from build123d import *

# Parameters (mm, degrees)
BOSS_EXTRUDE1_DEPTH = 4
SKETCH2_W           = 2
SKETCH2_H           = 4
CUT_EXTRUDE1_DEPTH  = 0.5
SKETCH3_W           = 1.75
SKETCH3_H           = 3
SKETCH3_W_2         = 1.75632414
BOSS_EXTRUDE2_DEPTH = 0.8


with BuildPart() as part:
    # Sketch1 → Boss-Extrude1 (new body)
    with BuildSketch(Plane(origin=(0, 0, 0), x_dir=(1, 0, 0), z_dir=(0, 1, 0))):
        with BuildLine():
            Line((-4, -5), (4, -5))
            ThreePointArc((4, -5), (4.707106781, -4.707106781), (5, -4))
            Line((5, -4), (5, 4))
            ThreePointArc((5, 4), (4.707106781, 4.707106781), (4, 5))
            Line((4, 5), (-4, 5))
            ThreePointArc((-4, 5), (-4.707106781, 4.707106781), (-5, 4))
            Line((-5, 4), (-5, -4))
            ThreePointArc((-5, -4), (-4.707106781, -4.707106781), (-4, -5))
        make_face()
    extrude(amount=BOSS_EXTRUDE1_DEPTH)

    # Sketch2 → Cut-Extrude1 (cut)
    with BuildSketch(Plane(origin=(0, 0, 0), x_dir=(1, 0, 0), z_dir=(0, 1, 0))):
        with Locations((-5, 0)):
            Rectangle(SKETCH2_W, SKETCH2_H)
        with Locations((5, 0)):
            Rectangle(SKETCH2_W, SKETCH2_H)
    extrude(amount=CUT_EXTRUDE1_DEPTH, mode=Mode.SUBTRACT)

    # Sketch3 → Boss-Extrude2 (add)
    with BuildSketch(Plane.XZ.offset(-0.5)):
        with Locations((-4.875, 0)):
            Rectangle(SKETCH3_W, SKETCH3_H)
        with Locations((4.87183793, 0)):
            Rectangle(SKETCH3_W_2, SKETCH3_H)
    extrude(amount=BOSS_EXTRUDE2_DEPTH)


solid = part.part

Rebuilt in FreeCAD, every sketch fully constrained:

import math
import FreeCAD as App
import Part
import Sketcher

doc = App.newDocument("Part")
body = doc.addObject("PartDesign::Body", "Body")

sketch1 = doc.addObject("Sketcher::SketchObject", "Sketch")
body.addObject(sketch1)
sketch1.AttachmentSupport = (doc.XZ_Plane, [""])
sketch1.MapMode = "FlatFace"
sketch1.addGeometry([
    Part.LineSegment(App.Vector(-4, 5, 0), App.Vector(4, 5, 0)),
    Part.ArcOfCircle(Part.Circle(App.Vector(4, 4, 0), App.Vector(0, 0, 1), 1), math.radians(0), math.radians(90)),
    Part.LineSegment(App.Vector(5, 4, 0), App.Vector(5, -4, 0)),
    Part.ArcOfCircle(Part.Circle(App.Vector(4, -4, 0), App.Vector(0, 0, 1), 1), math.radians(-90), math.radians(0)),
    Part.LineSegment(App.Vector(4, -5, 0), App.Vector(-4, -5, 0)),
    Part.ArcOfCircle(Part.Circle(App.Vector(-4, -4, 0), App.Vector(0, 0, 1), 1), math.radians(-180), math.radians(-90)),
    Part.LineSegment(App.Vector(-5, -4, 0), App.Vector(-5, 4, 0)),
    Part.ArcOfCircle(Part.Circle(App.Vector(-4, 4, 0), App.Vector(0, 0, 1), 1), math.radians(90), math.radians(180)),
], False)
sketch1.addConstraint([
    Sketcher.Constraint("Tangent", 0, 2, 1, 2),
    Sketcher.Constraint("Tangent", 1, 1, 2, 1),
    Sketcher.Constraint("Tangent", 2, 2, 3, 2),
    Sketcher.Constraint("Tangent", 3, 1, 4, 1),
    Sketcher.Constraint("Tangent", 4, 2, 5, 2),
    Sketcher.Constraint("Tangent", 5, 1, 6, 1),
    Sketcher.Constraint("Tangent", 6, 2, 7, 2),
    Sketcher.Constraint("Tangent", 7, 1, 0, 1),
    Sketcher.Constraint("Horizontal", 0),
    Sketcher.Constraint("Vertical", 2),
    Sketcher.Constraint("Horizontal", 4),
    Sketcher.Constraint("Vertical", 6),
    Sketcher.Constraint("Equal", 1, 3),
    Sketcher.Constraint("Equal", 3, 5),
    Sketcher.Constraint("Equal", 5, 7),
    Sketcher.Constraint("Symmetric", 1, 3, 5, 3, -1, 1),
    Sketcher.Constraint("Equal", 4, 2),
    Sketcher.Constraint("Radius", 1, 1.0),
    Sketcher.Constraint("DistanceX", 0, 1, 0, 2, 8.0),
])
pad1 = doc.addObject("PartDesign::Pad", "Pad")
body.addObject(pad1)
pad1.Profile = sketch1
pad1.Length = 4
pad1.Reversed = True

sketch2 = doc.addObject("Sketcher::SketchObject", "Sketch001")
body.addObject(sketch2)
sketch2.AttachmentSupport = (doc.XZ_Plane, [""])
sketch2.MapMode = "FlatFace"
sketch2.addGeometry([
    Part.LineSegment(App.Vector(-6, -2, 0), App.Vector(-6, 2, 0)),
    Part.LineSegment(App.Vector(-6, 2, 0), App.Vector(-4, 2, 0)),
    Part.LineSegment(App.Vector(-4, 2, 0), App.Vector(-4, -2, 0)),
    Part.LineSegment(App.Vector(-4, -2, 0), App.Vector(-6, -2, 0)),
    Part.LineSegment(App.Vector(4, -2, 0), App.Vector(4, 2, 0)),
    Part.LineSegment(App.Vector(4, 2, 0), App.Vector(6, 2, 0)),
    Part.LineSegment(App.Vector(6, 2, 0), App.Vector(6, -2, 0)),
    Part.LineSegment(App.Vector(6, -2, 0), App.Vector(4, -2, 0)),
], False)
sketch2.addConstraint([
    Sketcher.Constraint("Coincident", 0, 2, 1, 1),
    Sketcher.Constraint("Coincident", 1, 2, 2, 1),
    Sketcher.Constraint("Coincident", 2, 2, 3, 1),
    Sketcher.Constraint("Coincident", 3, 2, 0, 1),
    Sketcher.Constraint("Coincident", 4, 2, 5, 1),
    Sketcher.Constraint("Coincident", 5, 2, 6, 1),
    Sketcher.Constraint("Coincident", 6, 2, 7, 1),
    Sketcher.Constraint("Coincident", 7, 2, 4, 1),
    Sketcher.Constraint("Vertical", 0),
    Sketcher.Constraint("Horizontal", 1),
    Sketcher.Constraint("Vertical", 2),
    Sketcher.Constraint("Horizontal", 3),
    Sketcher.Constraint("Vertical", 4),
    Sketcher.Constraint("Horizontal", 5),
    Sketcher.Constraint("Vertical", 6),
    Sketcher.Constraint("Horizontal", 7),
    Sketcher.Constraint("Symmetric", 2, 2, 4, 2, -1, 1),
    Sketcher.Constraint("Symmetric", 0, 2, 6, 2, -1, 1),
    Sketcher.Constraint("Horizontal", 1, 2, 4, 2),
    Sketcher.Constraint("DistanceX", 1, 1, 1, 2, 2.0),
    Sketcher.Constraint("DistanceY", 0, 1, 0, 2, 4.0),
    Sketcher.Constraint("DistanceX", 0, 2, -1, 1, 6.0),
])
pocket1 = doc.addObject("PartDesign::Pocket", "Pocket")
body.addObject(pocket1)
pocket1.Profile = sketch2
pocket1.Length = 0.5

sketch3 = doc.addObject("Sketcher::SketchObject", "Sketch002")
body.addObject(sketch3)
sketch3.AttachmentSupport = (doc.XZ_Plane, [""])
sketch3.MapMode = "FlatFace"
sketch3.AttachmentOffset = App.Placement(App.Vector(0, 0, -0.5), App.Rotation())
sketch3.addGeometry([
    Part.LineSegment(App.Vector(-5.8, 1.5, 0), App.Vector(-5.8, -1.5, 0)),
    Part.LineSegment(App.Vector(-5.8, -1.5, 0), App.Vector(-4, -1.5, 0)),
    Part.LineSegment(App.Vector(-4, -1.5, 0), App.Vector(-4, 1.5, 0)),
    Part.LineSegment(App.Vector(-4, 1.5, 0), App.Vector(-5.8, 1.5, 0)),
    Part.LineSegment(App.Vector(4, 1.5, 0), App.Vector(4, -1.5, 0)),
    Part.LineSegment(App.Vector(4, -1.5, 0), App.Vector(5.8, -1.5, 0)),
    Part.LineSegment(App.Vector(5.8, -1.5, 0), App.Vector(5.8, 1.5, 0)),
    Part.LineSegment(App.Vector(5.8, 1.5, 0), App.Vector(4, 1.5, 0)),
], False)
sketch3.addConstraint([
    Sketcher.Constraint("Coincident", 0, 2, 1, 1),
    Sketcher.Constraint("Coincident", 1, 2, 2, 1),
    Sketcher.Constraint("Coincident", 2, 2, 3, 1),
    Sketcher.Constraint("Coincident", 3, 2, 0, 1),
    Sketcher.Constraint("Coincident", 4, 2, 5, 1),
    Sketcher.Constraint("Coincident", 5, 2, 6, 1),
    Sketcher.Constraint("Coincident", 6, 2, 7, 1),
    Sketcher.Constraint("Coincident", 7, 2, 4, 1),
    Sketcher.Constraint("Vertical", 0),
    Sketcher.Constraint("Horizontal", 1),
    Sketcher.Constraint("Vertical", 2),
    Sketcher.Constraint("Horizontal", 3),
    Sketcher.Constraint("Vertical", 4),
    Sketcher.Constraint("Horizontal", 5),
    Sketcher.Constraint("Vertical", 6),
    Sketcher.Constraint("Horizontal", 7),
    Sketcher.Constraint("Symmetric", 3, 2, 5, 2, -1, 1),
    Sketcher.Constraint("Horizontal", 1, 2, 4, 2),
    Sketcher.Constraint("Horizontal", 3, 2, 6, 2),
    Sketcher.Constraint("DistanceY", 0, 2, 0, 1, 3.0),
    Sketcher.Constraint("DistanceX", 1, 2, -1, 1, 4.0),
    Sketcher.Constraint("DistanceX", 1, 1, 1, 2, 1.75),
    Sketcher.Constraint("DistanceX", 5, 1, 5, 2, 1.756324),
])
pad2 = doc.addObject("PartDesign::Pad", "Pad001")
body.addObject(pad2)
pad2.Profile = sketch3
pad2.Length = 0.8

doc.recompute()
